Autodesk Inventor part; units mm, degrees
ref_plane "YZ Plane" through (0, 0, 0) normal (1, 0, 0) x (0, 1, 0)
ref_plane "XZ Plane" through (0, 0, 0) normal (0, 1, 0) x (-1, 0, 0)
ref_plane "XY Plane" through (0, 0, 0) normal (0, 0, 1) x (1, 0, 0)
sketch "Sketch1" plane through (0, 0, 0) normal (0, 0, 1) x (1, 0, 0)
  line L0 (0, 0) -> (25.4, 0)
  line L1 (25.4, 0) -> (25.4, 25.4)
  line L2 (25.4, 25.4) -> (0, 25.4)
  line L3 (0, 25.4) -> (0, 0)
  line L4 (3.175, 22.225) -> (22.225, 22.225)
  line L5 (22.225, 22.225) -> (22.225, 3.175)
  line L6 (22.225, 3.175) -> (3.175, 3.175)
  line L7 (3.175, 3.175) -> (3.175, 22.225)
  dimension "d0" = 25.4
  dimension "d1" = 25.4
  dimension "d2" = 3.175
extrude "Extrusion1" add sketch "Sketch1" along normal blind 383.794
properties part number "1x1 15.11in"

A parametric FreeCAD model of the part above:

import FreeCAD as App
import Part
import Sketcher
from FreeCAD import Vector
Q = App.Units.Quantity


def add_polygon(sketch, points):
    """Adds a closed chain of lines whose ends are joined by coincident constraints."""
    first, n = sketch.GeometryCount, len(points)
    for a, b in zip(points, points[1:] + points[:1]):
        sketch.addGeometry(Part.LineSegment(App.Vector(*a, 0), App.Vector(*b, 0)), False)
    for i in range(n):
        sketch.addConstraint(Sketcher.Constraint("Coincident", first + i, 2, first + (i + 1) % n, 1))

doc = App.newDocument("Part")
body = doc.addObject("PartDesign::Body", "Body")

sketch1 = doc.addObject("Sketcher::SketchObject", "Sketch")
body.addObject(sketch1)
sketch1.AttachmentSupport = (doc.XY_Plane, [""])
sketch1.MapMode = "FlatFace"
add_polygon(sketch1, [(0, 25), (0, 0), (25, 0), (25, 25)])
add_polygon(sketch1, [(3, 3), (3, 22), (22, 22), (22, 3)])
sketch1.addConstraint([
    Sketcher.Constraint("Vertical", 0),
    Sketcher.Constraint("Horizontal", 1),
    Sketcher.Constraint("Vertical", 2),
    Sketcher.Constraint("Horizontal", 3),
    Sketcher.Constraint("Vertical", 4),
    Sketcher.Constraint("Horizontal", 5),
    Sketcher.Constraint("Vertical", 6),
    Sketcher.Constraint("Horizontal", 7),
    Sketcher.Constraint("Coincident", 0, 2, -1, 1),
    Sketcher.Constraint("Equal", 3, 0),
    Sketcher.Constraint("Equal", 7, 4),
    Sketcher.Constraint("DistanceX", 1, 1, 1, 2, Q("1 in")),
    Sketcher.Constraint("DistanceX", -1, 1, 4, 2, Q("0.125 in")),
    Sketcher.Constraint("DistanceY", -1, 1, 6, 2, Q("0.125 in")),
    Sketcher.Constraint("DistanceY", 4, 2, 3, 2, Q("0.125 in")),
])
pad1 = doc.addObject("PartDesign::Pad", "Pad")
body.addObject(pad1)
pad1.Profile = sketch1
pad1.Length = Q("15.11 in")

doc.recompute()
